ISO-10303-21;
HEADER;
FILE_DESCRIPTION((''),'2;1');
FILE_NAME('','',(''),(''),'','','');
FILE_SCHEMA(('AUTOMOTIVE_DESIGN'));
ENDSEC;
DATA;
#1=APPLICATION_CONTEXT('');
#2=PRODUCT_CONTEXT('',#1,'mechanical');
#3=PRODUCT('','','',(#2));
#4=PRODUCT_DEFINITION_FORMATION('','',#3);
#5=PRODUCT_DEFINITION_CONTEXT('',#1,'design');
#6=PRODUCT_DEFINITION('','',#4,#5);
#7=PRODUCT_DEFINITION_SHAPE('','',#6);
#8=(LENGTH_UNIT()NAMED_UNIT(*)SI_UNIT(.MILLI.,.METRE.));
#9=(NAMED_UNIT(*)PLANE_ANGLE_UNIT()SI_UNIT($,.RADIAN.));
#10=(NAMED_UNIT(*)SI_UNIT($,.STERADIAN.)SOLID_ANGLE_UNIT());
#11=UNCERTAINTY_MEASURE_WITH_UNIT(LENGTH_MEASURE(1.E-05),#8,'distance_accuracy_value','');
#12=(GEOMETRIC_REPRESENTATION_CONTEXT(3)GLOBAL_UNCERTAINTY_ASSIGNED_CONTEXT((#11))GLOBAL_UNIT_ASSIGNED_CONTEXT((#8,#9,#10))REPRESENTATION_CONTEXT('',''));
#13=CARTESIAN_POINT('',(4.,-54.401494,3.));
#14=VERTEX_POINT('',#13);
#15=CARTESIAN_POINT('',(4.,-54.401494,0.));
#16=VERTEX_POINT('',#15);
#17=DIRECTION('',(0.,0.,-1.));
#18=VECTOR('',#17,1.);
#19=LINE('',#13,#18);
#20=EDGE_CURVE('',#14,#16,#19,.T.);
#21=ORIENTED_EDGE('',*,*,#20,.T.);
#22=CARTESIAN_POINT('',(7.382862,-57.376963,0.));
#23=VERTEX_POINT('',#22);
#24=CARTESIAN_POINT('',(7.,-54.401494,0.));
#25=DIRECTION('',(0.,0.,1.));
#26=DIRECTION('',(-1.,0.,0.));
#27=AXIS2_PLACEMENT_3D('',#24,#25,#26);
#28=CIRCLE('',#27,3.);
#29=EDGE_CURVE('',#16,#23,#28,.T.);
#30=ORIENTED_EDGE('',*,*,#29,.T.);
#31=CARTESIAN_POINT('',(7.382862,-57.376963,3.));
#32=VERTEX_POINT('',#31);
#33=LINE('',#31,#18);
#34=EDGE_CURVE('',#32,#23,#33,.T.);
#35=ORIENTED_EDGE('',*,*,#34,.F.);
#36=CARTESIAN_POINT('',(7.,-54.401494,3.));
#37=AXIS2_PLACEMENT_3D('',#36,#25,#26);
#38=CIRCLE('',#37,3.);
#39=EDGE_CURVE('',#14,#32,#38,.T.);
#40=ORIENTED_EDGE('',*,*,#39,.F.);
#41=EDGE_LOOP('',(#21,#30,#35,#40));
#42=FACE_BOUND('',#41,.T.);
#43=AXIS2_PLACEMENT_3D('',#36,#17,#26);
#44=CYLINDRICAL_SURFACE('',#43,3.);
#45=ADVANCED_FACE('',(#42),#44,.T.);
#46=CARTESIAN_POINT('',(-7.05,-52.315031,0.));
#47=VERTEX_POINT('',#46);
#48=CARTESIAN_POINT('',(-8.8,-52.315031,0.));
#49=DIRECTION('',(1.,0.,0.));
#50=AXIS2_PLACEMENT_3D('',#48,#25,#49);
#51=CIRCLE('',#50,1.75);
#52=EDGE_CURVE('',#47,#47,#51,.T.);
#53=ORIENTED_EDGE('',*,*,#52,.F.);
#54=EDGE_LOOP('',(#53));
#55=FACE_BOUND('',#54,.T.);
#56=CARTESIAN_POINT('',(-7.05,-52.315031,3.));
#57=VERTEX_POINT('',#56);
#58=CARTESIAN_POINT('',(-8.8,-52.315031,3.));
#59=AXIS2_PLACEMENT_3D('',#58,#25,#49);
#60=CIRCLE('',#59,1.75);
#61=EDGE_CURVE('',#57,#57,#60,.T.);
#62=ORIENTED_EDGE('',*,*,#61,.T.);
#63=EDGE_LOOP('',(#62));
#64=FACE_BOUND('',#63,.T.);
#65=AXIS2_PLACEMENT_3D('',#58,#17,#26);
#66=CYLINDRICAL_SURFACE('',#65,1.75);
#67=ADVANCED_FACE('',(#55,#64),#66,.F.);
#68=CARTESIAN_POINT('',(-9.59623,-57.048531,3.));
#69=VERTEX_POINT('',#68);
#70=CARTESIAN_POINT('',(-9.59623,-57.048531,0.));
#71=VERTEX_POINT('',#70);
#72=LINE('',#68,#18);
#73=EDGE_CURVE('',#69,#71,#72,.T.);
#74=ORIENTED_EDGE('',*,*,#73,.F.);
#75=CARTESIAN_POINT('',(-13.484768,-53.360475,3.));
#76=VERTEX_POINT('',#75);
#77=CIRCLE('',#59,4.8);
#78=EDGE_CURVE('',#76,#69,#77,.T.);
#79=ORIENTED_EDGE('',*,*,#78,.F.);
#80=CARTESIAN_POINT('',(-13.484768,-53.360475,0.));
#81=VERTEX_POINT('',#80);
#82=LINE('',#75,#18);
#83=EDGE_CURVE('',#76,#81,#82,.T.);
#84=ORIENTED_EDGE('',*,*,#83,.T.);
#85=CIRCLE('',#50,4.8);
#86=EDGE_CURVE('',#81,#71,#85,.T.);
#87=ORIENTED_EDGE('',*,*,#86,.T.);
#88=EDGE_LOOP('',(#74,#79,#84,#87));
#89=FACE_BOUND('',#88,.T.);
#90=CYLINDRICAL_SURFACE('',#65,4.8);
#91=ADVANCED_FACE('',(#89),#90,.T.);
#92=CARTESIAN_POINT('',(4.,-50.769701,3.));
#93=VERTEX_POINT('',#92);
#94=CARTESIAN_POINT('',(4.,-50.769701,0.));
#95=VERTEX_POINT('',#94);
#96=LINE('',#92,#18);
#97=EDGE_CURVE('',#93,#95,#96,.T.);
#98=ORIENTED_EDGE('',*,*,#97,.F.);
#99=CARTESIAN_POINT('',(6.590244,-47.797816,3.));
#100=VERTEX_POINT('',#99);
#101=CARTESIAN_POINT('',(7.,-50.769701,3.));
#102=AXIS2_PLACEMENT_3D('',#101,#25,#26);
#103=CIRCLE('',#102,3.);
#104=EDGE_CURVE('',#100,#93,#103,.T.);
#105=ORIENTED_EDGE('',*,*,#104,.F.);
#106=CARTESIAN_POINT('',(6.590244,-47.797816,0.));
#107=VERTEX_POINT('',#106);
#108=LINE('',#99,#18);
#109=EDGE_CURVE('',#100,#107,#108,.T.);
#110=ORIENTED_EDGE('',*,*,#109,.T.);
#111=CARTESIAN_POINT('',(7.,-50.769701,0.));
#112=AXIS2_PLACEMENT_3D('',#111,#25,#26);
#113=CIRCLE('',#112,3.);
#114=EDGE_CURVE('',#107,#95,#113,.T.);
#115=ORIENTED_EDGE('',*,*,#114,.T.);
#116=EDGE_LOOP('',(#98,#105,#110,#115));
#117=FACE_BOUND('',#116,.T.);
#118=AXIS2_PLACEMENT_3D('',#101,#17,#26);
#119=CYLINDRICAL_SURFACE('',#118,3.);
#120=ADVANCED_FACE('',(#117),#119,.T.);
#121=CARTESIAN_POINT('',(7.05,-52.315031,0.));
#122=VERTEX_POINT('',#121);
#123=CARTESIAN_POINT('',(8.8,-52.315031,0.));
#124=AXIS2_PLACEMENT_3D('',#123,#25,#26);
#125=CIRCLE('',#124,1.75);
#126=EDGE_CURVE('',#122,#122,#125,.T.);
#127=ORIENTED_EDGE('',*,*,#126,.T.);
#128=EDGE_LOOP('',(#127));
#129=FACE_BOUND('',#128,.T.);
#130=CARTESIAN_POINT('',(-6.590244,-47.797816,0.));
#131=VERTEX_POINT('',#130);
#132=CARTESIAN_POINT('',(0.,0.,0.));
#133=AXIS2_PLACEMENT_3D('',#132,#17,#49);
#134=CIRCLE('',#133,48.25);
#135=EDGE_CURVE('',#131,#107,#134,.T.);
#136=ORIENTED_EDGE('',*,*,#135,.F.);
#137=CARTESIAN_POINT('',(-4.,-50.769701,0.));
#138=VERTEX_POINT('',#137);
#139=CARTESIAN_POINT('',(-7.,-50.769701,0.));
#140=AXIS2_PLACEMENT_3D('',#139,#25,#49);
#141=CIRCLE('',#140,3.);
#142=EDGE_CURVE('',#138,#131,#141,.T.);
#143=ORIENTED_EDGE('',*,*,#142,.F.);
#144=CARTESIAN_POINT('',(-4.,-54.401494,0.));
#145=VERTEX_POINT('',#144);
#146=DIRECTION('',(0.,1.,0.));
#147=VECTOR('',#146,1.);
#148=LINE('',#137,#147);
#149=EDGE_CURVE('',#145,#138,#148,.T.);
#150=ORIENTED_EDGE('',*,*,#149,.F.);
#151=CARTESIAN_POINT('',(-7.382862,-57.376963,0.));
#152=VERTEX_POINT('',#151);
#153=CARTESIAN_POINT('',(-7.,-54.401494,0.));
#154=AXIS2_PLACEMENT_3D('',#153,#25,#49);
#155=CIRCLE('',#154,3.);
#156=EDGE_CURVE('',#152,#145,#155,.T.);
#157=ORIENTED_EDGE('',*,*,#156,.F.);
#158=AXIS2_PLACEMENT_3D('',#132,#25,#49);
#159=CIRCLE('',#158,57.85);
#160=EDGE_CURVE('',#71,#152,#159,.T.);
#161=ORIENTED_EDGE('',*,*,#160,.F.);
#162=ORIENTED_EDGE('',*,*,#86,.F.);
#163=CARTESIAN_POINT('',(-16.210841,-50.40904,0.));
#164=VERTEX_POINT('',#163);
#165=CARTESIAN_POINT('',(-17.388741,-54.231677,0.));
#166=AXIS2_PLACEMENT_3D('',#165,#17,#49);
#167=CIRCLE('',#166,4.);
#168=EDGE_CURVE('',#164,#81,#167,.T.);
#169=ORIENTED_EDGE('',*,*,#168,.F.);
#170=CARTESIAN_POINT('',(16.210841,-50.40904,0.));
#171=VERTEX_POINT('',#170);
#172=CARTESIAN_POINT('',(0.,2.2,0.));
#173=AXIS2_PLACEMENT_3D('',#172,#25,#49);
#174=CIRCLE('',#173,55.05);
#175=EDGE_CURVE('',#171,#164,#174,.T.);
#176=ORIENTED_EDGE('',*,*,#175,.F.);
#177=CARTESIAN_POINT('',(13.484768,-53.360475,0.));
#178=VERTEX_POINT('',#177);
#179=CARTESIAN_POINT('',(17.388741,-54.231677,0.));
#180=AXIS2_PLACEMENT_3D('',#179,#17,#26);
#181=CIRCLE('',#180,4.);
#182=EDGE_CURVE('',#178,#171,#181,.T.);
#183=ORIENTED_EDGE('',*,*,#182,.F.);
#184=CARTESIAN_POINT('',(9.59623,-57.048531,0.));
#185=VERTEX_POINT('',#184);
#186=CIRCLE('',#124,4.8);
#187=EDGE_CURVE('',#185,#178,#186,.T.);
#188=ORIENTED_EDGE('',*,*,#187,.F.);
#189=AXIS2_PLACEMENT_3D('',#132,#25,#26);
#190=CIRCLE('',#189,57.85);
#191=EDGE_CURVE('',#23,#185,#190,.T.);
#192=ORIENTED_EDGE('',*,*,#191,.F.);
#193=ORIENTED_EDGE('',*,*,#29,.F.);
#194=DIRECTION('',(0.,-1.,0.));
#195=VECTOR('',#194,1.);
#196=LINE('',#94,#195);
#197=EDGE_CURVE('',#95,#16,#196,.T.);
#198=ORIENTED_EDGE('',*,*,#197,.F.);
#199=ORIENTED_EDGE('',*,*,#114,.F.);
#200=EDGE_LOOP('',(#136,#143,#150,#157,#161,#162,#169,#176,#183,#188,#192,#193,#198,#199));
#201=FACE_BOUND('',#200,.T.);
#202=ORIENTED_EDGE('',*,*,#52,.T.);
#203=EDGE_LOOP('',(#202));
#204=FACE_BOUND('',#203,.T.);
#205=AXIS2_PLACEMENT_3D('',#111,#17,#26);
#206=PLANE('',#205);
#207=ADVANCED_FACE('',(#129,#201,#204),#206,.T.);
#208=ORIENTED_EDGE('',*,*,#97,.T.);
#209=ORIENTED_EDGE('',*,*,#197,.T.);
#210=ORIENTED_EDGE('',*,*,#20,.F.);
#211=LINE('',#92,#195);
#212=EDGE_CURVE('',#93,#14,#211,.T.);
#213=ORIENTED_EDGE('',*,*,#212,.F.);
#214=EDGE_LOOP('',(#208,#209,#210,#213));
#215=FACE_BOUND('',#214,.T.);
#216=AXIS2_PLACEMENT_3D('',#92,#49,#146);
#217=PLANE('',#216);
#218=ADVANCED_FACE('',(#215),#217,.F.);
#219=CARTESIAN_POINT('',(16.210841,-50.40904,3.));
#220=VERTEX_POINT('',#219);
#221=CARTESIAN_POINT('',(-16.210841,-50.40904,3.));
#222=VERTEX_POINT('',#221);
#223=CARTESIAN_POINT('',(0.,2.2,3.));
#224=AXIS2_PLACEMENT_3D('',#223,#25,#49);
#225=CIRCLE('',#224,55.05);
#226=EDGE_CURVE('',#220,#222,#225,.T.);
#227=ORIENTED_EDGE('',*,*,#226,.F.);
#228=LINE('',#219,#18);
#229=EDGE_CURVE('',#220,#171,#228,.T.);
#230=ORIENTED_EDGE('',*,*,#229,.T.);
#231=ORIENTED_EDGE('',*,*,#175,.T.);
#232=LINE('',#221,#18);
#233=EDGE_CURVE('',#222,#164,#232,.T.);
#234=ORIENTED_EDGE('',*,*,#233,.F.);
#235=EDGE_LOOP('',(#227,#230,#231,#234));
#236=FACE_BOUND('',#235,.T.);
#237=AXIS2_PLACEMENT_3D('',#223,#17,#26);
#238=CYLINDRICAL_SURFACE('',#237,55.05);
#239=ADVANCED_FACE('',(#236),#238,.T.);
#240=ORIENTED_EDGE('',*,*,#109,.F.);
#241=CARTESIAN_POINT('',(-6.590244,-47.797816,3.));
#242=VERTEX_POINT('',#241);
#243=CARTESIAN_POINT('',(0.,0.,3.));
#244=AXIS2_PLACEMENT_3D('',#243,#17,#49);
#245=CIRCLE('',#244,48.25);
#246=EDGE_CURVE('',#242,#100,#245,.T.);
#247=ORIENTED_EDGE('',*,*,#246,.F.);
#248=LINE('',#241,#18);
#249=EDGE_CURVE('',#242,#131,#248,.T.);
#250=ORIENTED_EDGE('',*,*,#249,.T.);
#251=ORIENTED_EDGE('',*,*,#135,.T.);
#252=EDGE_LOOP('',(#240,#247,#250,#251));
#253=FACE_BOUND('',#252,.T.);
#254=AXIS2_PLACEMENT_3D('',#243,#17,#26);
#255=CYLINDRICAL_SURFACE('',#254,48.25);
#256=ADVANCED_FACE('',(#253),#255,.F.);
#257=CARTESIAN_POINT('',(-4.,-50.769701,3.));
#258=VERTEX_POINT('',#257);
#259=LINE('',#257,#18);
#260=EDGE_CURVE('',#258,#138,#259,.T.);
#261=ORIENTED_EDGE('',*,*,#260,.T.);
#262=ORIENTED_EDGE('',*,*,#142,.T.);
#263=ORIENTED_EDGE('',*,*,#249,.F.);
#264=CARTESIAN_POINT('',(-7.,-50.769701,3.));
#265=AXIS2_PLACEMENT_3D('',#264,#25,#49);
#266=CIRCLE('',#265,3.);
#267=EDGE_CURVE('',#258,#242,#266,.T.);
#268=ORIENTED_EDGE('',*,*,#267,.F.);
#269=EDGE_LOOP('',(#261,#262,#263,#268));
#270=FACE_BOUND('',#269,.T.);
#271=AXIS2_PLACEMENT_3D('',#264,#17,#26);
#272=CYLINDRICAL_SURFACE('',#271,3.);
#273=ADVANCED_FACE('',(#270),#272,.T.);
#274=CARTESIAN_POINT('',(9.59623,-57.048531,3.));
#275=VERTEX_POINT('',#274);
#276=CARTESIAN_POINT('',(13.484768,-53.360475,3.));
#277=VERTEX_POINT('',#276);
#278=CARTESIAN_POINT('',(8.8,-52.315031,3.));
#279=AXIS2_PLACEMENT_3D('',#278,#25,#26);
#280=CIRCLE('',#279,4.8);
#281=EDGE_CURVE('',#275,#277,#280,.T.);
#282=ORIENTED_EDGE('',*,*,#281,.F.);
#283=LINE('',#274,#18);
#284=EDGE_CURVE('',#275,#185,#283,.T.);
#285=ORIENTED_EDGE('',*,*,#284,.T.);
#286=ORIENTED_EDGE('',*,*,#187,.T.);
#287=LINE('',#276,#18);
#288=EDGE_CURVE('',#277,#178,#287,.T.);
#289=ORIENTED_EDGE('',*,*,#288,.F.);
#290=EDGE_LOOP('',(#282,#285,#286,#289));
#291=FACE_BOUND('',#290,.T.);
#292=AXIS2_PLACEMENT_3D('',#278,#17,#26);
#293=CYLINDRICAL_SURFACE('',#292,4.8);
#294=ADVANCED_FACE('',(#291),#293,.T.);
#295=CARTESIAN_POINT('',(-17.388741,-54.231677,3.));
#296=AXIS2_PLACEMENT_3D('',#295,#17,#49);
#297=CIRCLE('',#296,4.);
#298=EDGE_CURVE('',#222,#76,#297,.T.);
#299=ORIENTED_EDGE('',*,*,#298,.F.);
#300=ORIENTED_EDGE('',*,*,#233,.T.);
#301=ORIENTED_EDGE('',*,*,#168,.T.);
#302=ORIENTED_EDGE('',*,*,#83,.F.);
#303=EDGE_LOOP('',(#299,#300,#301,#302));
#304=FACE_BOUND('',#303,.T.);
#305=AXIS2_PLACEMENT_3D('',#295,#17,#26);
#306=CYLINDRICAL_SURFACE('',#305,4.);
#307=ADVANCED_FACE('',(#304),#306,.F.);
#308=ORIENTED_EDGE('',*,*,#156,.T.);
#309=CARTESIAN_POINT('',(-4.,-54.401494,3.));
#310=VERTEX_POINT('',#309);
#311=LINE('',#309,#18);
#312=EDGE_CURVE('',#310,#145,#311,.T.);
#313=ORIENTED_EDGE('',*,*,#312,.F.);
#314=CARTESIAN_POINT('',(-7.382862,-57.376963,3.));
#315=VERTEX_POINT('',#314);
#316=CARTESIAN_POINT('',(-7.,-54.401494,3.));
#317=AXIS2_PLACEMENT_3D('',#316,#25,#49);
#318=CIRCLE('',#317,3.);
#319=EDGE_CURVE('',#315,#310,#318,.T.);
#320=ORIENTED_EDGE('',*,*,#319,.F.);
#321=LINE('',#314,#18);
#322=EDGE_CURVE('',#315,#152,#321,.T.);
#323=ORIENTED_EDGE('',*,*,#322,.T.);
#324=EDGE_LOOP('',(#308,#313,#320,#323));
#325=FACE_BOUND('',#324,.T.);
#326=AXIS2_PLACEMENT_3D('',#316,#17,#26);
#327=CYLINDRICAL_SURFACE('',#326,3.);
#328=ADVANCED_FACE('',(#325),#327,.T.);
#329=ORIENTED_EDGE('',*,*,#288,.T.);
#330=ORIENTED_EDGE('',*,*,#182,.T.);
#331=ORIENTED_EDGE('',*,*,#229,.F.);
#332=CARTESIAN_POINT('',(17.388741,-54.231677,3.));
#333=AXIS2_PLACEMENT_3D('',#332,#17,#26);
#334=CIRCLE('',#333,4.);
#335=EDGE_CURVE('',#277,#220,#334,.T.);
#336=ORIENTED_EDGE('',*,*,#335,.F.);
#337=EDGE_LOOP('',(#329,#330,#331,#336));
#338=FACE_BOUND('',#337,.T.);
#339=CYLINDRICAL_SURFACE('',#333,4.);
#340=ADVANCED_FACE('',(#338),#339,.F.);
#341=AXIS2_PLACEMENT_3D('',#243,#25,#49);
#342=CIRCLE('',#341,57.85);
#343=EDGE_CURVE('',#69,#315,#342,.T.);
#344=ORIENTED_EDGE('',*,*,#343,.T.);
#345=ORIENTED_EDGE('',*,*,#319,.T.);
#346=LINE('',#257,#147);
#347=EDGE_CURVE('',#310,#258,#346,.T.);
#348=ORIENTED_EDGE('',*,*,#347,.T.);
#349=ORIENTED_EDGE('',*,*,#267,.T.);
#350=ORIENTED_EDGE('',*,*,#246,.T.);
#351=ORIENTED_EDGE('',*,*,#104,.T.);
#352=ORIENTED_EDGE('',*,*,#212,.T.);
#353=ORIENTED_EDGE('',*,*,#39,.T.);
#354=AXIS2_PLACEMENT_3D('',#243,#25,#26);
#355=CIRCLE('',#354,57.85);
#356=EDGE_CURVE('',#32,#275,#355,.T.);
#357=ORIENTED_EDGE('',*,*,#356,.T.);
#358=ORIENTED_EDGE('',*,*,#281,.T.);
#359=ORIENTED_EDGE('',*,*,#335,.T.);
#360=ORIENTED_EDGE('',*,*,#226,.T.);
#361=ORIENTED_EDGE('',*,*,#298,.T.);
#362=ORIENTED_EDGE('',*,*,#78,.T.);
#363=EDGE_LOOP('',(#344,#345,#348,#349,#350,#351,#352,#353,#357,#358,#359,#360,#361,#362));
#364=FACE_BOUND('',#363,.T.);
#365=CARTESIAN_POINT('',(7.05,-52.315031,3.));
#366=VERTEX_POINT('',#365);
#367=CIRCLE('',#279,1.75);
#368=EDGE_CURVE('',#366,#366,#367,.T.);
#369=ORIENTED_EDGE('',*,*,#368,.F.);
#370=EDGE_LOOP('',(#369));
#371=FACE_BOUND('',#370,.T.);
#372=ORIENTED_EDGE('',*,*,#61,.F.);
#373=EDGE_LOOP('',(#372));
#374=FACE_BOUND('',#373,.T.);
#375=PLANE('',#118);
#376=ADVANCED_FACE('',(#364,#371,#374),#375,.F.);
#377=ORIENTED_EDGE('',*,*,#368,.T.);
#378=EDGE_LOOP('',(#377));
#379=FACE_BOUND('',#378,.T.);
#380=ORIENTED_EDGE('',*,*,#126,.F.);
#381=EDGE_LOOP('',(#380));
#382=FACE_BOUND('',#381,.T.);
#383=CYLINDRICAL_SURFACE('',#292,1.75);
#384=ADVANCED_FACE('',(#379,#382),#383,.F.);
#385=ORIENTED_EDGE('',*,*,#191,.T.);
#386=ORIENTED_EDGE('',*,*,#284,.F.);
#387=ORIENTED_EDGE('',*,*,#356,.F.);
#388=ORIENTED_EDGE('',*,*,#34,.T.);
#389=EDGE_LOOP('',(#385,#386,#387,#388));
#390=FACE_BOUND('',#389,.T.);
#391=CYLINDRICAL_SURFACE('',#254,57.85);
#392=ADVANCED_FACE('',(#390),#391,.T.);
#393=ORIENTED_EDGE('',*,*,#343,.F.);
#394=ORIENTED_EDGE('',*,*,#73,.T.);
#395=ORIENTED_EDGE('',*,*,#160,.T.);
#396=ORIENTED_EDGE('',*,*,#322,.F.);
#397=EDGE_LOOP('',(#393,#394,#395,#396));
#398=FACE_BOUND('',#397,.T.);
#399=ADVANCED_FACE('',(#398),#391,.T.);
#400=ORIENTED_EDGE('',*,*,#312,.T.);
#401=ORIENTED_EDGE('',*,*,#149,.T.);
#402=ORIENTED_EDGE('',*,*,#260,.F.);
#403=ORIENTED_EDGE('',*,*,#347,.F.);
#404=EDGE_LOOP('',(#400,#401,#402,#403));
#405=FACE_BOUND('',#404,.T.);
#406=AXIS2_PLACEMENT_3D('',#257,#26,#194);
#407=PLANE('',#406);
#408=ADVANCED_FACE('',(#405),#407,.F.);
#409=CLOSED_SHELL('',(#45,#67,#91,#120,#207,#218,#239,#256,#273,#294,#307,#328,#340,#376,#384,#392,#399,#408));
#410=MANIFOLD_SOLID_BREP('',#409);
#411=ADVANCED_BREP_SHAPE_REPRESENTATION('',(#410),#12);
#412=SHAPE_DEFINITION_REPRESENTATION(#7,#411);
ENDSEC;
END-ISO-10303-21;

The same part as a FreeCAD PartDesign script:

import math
import FreeCAD as App
import Part
import Sketcher

doc = App.newDocument("Part")
params = doc.addObject("Spreadsheet::Sheet", "Params")
for row, (alias, value) in enumerate([
    ("sketch1_radius", "3 mm"),
    ("sketch1_radius2", "4 mm"),
    ("sketch1_diameter", "3.5 mm"),
    ("sketch1_radius3", "4.8 mm"),
    ("sketch1_radius4", "48.25 mm"),
    ("pad1_length", "3 mm"),
], start=1):
    params.set(f"A{row}", alias)
    params.set(f"B{row}", "=" + value)
    params.setAlias(f"B{row}", alias)

body = doc.addObject("PartDesign::Body", "Body")

sketch1 = doc.addObject("Sketcher::SketchObject", "Sketch")
body.addObject(sketch1)
sketch1.AttachmentSupport = (doc.XY_Plane, [""])
sketch1.MapMode = "FlatFace"
sketch1.addGeometry([
    Part.LineSegment(App.Vector(-4, -54.401494, 0), App.Vector(-4, -50.769701, 0)),
    Part.ArcOfCircle(Part.Circle(App.Vector(-7, -50.769701, 0), App.Vector(0, 0, 1), 3), math.radians(0), math.radians(82.149696)),
    Part.ArcOfCircle(Part.Circle(App.Vector(0, 0, 0), App.Vector(0, 0, 1), 48.25), math.radians(-82.149696), math.radians(262.149696)),
    Part.ArcOfCircle(Part.Circle(App.Vector(7, -50.769701, 0), App.Vector(0, 0, 1), 3), math.radians(97.850304), math.radians(180)),
    Part.LineSegment(App.Vector(4, -50.769701, 0), App.Vector(4, -54.401494, 0)),
    Part.ArcOfCircle(Part.Circle(App.Vector(7, -54.401494, 0), App.Vector(0, 0, 1), 3), math.radians(-180), math.radians(-82.667872)),
    Part.ArcOfCircle(Part.Circle(App.Vector(0, -0.000002, 0), App.Vector(0, 0, 1), 57.849998), math.radians(-82.667872), math.radians(-80.451568)),
    Part.ArcOfCircle(Part.Circle(App.Vector(8.8, -52.315031, 0), App.Vector(0, 0, 1), 4.8), math.radians(-80.451568), math.radians(-12.579889)),
    Part.ArcOfCircle(Part.Circle(App.Vector(17.388741, -54.231677, 0), App.Vector(0, 0, 1), 4), math.radians(107.126051), math.radians(167.420111)),
    Part.ArcOfCircle(Part.Circle(App.Vector(0, 2.2, 0), App.Vector(0, 0, 1), 55.05), math.radians(-72.873949), math.radians(252.873949)),
    Part.ArcOfCircle(Part.Circle(App.Vector(-17.388741, -54.231677, 0), App.Vector(0, 0, 1), 4), math.radians(12.579889), math.radians(72.873949)),
    Part.ArcOfCircle(Part.Circle(App.Vector(-8.8, -52.315031, 0), App.Vector(0, 0, 1), 4.8), math.radians(-167.420111), math.radians(-99.548432)),
    Part.ArcOfCircle(Part.Circle(App.Vector(0, -0.000002, 0), App.Vector(0, 0, 1), 57.849998), math.radians(-99.548432), math.radians(-97.332128)),
    Part.ArcOfCircle(Part.Circle(App.Vector(-7, -54.401494, 0), App.Vector(0, 0, 1), 3), math.radians(-97.332128), math.radians(0)),
    Part.Circle(App.Vector(8.8, -52.315031, 0), App.Vector(0, 0, 1), 1.75),
    Part.Circle(App.Vector(-8.8, -52.315031, 0), App.Vector(0, 0, 1), 1.75),
], False)
sketch1.addConstraint([
    Sketcher.Constraint("Tangent", 0, 2, 1, 1),
    Sketcher.Constraint("Tangent", 1, 2, 2, 2),
    Sketcher.Constraint("Tangent", 2, 1, 3, 1),
    Sketcher.Constraint("Tangent", 3, 2, 4, 1),
    Sketcher.Constraint("Tangent", 4, 2, 5, 1),
    Sketcher.Constraint("Tangent", 5, 2, 6, 1),
    Sketcher.Constraint("Tangent", 6, 2, 7, 1),
    Sketcher.Constraint("Tangent", 7, 2, 8, 2),
    Sketcher.Constraint("Tangent", 8, 1, 9, 1),
    Sketcher.Constraint("Tangent", 9, 2, 10, 2),
    Sketcher.Constraint("Tangent", 10, 1, 11, 1),
    Sketcher.Constraint("Tangent", 11, 2, 12, 1),
    Sketcher.Constraint("Tangent", 12, 2, 13, 1),
    Sketcher.Constraint("Tangent", 13, 2, 0, 1),
    Sketcher.Constraint("Vertical", 0),
    Sketcher.Constraint("Vertical", 4),
    Sketcher.Constraint("Coincident", 2, 3, -1, 1),
    Sketcher.Constraint("Coincident", 6, 3, -1, 1),
    Sketcher.Constraint("Coincident", 12, 3, -1, 1),
    Sketcher.Constraint("Coincident", 14, 3, 7, 3),
    Sketcher.Constraint("Coincident", 15, 3, 11, 3),
    Sketcher.Constraint("Equal", 1, 3),
    Sketcher.Constraint("Equal", 3, 5),
    Sketcher.Constraint("Equal", 8, 10),
    Sketcher.Constraint("Equal", 7, 11),
    Sketcher.Constraint("Equal", 6, 12),
    Sketcher.Constraint("Equal", 5, 13),
    Sketcher.Constraint("Equal", 14, 15),
    Sketcher.Constraint("Symmetric", 8, 3, 10, 3, -2),
    Sketcher.Constraint("Horizontal", 1, 3, 3, 3),
    Sketcher.Constraint("Radius", 1, 3.0),
    Sketcher.Constraint("Radius", 8, 4.0),
    Sketcher.Constraint("Diameter", 14, 3.5),
    Sketcher.Constraint("Radius", 7, 4.8),
    Sketcher.Constraint("Radius", 2, 48.25),
    Sketcher.Constraint("Radius", 6, 57.849998),
    Sketcher.Constraint("Radius", 9, 55.05),
    Sketcher.Constraint("DistanceX", 1, 3, -1, 1, 7.0),
    Sketcher.Constraint("DistanceX", -1, 1, 7, 3, 8.8),
    Sketcher.Constraint("DistanceY", -1, 1, 9, 3, 2.2),
])
sketch1.setExpression("Constraints[30]", "Params.sketch1_radius")
sketch1.setExpression("Constraints[31]", "Params.sketch1_radius2")
sketch1.setExpression("Constraints[32]", "Params.sketch1_diameter")
sketch1.setExpression("Constraints[33]", "Params.sketch1_radius3")
sketch1.setExpression("Constraints[34]", "Params.sketch1_radius4")
pad1 = doc.addObject("PartDesign::Pad", "Pad")
body.addObject(pad1)
pad1.Profile = sketch1
pad1.setExpression("Length", "Params.pad1_length")

doc.recompute()
